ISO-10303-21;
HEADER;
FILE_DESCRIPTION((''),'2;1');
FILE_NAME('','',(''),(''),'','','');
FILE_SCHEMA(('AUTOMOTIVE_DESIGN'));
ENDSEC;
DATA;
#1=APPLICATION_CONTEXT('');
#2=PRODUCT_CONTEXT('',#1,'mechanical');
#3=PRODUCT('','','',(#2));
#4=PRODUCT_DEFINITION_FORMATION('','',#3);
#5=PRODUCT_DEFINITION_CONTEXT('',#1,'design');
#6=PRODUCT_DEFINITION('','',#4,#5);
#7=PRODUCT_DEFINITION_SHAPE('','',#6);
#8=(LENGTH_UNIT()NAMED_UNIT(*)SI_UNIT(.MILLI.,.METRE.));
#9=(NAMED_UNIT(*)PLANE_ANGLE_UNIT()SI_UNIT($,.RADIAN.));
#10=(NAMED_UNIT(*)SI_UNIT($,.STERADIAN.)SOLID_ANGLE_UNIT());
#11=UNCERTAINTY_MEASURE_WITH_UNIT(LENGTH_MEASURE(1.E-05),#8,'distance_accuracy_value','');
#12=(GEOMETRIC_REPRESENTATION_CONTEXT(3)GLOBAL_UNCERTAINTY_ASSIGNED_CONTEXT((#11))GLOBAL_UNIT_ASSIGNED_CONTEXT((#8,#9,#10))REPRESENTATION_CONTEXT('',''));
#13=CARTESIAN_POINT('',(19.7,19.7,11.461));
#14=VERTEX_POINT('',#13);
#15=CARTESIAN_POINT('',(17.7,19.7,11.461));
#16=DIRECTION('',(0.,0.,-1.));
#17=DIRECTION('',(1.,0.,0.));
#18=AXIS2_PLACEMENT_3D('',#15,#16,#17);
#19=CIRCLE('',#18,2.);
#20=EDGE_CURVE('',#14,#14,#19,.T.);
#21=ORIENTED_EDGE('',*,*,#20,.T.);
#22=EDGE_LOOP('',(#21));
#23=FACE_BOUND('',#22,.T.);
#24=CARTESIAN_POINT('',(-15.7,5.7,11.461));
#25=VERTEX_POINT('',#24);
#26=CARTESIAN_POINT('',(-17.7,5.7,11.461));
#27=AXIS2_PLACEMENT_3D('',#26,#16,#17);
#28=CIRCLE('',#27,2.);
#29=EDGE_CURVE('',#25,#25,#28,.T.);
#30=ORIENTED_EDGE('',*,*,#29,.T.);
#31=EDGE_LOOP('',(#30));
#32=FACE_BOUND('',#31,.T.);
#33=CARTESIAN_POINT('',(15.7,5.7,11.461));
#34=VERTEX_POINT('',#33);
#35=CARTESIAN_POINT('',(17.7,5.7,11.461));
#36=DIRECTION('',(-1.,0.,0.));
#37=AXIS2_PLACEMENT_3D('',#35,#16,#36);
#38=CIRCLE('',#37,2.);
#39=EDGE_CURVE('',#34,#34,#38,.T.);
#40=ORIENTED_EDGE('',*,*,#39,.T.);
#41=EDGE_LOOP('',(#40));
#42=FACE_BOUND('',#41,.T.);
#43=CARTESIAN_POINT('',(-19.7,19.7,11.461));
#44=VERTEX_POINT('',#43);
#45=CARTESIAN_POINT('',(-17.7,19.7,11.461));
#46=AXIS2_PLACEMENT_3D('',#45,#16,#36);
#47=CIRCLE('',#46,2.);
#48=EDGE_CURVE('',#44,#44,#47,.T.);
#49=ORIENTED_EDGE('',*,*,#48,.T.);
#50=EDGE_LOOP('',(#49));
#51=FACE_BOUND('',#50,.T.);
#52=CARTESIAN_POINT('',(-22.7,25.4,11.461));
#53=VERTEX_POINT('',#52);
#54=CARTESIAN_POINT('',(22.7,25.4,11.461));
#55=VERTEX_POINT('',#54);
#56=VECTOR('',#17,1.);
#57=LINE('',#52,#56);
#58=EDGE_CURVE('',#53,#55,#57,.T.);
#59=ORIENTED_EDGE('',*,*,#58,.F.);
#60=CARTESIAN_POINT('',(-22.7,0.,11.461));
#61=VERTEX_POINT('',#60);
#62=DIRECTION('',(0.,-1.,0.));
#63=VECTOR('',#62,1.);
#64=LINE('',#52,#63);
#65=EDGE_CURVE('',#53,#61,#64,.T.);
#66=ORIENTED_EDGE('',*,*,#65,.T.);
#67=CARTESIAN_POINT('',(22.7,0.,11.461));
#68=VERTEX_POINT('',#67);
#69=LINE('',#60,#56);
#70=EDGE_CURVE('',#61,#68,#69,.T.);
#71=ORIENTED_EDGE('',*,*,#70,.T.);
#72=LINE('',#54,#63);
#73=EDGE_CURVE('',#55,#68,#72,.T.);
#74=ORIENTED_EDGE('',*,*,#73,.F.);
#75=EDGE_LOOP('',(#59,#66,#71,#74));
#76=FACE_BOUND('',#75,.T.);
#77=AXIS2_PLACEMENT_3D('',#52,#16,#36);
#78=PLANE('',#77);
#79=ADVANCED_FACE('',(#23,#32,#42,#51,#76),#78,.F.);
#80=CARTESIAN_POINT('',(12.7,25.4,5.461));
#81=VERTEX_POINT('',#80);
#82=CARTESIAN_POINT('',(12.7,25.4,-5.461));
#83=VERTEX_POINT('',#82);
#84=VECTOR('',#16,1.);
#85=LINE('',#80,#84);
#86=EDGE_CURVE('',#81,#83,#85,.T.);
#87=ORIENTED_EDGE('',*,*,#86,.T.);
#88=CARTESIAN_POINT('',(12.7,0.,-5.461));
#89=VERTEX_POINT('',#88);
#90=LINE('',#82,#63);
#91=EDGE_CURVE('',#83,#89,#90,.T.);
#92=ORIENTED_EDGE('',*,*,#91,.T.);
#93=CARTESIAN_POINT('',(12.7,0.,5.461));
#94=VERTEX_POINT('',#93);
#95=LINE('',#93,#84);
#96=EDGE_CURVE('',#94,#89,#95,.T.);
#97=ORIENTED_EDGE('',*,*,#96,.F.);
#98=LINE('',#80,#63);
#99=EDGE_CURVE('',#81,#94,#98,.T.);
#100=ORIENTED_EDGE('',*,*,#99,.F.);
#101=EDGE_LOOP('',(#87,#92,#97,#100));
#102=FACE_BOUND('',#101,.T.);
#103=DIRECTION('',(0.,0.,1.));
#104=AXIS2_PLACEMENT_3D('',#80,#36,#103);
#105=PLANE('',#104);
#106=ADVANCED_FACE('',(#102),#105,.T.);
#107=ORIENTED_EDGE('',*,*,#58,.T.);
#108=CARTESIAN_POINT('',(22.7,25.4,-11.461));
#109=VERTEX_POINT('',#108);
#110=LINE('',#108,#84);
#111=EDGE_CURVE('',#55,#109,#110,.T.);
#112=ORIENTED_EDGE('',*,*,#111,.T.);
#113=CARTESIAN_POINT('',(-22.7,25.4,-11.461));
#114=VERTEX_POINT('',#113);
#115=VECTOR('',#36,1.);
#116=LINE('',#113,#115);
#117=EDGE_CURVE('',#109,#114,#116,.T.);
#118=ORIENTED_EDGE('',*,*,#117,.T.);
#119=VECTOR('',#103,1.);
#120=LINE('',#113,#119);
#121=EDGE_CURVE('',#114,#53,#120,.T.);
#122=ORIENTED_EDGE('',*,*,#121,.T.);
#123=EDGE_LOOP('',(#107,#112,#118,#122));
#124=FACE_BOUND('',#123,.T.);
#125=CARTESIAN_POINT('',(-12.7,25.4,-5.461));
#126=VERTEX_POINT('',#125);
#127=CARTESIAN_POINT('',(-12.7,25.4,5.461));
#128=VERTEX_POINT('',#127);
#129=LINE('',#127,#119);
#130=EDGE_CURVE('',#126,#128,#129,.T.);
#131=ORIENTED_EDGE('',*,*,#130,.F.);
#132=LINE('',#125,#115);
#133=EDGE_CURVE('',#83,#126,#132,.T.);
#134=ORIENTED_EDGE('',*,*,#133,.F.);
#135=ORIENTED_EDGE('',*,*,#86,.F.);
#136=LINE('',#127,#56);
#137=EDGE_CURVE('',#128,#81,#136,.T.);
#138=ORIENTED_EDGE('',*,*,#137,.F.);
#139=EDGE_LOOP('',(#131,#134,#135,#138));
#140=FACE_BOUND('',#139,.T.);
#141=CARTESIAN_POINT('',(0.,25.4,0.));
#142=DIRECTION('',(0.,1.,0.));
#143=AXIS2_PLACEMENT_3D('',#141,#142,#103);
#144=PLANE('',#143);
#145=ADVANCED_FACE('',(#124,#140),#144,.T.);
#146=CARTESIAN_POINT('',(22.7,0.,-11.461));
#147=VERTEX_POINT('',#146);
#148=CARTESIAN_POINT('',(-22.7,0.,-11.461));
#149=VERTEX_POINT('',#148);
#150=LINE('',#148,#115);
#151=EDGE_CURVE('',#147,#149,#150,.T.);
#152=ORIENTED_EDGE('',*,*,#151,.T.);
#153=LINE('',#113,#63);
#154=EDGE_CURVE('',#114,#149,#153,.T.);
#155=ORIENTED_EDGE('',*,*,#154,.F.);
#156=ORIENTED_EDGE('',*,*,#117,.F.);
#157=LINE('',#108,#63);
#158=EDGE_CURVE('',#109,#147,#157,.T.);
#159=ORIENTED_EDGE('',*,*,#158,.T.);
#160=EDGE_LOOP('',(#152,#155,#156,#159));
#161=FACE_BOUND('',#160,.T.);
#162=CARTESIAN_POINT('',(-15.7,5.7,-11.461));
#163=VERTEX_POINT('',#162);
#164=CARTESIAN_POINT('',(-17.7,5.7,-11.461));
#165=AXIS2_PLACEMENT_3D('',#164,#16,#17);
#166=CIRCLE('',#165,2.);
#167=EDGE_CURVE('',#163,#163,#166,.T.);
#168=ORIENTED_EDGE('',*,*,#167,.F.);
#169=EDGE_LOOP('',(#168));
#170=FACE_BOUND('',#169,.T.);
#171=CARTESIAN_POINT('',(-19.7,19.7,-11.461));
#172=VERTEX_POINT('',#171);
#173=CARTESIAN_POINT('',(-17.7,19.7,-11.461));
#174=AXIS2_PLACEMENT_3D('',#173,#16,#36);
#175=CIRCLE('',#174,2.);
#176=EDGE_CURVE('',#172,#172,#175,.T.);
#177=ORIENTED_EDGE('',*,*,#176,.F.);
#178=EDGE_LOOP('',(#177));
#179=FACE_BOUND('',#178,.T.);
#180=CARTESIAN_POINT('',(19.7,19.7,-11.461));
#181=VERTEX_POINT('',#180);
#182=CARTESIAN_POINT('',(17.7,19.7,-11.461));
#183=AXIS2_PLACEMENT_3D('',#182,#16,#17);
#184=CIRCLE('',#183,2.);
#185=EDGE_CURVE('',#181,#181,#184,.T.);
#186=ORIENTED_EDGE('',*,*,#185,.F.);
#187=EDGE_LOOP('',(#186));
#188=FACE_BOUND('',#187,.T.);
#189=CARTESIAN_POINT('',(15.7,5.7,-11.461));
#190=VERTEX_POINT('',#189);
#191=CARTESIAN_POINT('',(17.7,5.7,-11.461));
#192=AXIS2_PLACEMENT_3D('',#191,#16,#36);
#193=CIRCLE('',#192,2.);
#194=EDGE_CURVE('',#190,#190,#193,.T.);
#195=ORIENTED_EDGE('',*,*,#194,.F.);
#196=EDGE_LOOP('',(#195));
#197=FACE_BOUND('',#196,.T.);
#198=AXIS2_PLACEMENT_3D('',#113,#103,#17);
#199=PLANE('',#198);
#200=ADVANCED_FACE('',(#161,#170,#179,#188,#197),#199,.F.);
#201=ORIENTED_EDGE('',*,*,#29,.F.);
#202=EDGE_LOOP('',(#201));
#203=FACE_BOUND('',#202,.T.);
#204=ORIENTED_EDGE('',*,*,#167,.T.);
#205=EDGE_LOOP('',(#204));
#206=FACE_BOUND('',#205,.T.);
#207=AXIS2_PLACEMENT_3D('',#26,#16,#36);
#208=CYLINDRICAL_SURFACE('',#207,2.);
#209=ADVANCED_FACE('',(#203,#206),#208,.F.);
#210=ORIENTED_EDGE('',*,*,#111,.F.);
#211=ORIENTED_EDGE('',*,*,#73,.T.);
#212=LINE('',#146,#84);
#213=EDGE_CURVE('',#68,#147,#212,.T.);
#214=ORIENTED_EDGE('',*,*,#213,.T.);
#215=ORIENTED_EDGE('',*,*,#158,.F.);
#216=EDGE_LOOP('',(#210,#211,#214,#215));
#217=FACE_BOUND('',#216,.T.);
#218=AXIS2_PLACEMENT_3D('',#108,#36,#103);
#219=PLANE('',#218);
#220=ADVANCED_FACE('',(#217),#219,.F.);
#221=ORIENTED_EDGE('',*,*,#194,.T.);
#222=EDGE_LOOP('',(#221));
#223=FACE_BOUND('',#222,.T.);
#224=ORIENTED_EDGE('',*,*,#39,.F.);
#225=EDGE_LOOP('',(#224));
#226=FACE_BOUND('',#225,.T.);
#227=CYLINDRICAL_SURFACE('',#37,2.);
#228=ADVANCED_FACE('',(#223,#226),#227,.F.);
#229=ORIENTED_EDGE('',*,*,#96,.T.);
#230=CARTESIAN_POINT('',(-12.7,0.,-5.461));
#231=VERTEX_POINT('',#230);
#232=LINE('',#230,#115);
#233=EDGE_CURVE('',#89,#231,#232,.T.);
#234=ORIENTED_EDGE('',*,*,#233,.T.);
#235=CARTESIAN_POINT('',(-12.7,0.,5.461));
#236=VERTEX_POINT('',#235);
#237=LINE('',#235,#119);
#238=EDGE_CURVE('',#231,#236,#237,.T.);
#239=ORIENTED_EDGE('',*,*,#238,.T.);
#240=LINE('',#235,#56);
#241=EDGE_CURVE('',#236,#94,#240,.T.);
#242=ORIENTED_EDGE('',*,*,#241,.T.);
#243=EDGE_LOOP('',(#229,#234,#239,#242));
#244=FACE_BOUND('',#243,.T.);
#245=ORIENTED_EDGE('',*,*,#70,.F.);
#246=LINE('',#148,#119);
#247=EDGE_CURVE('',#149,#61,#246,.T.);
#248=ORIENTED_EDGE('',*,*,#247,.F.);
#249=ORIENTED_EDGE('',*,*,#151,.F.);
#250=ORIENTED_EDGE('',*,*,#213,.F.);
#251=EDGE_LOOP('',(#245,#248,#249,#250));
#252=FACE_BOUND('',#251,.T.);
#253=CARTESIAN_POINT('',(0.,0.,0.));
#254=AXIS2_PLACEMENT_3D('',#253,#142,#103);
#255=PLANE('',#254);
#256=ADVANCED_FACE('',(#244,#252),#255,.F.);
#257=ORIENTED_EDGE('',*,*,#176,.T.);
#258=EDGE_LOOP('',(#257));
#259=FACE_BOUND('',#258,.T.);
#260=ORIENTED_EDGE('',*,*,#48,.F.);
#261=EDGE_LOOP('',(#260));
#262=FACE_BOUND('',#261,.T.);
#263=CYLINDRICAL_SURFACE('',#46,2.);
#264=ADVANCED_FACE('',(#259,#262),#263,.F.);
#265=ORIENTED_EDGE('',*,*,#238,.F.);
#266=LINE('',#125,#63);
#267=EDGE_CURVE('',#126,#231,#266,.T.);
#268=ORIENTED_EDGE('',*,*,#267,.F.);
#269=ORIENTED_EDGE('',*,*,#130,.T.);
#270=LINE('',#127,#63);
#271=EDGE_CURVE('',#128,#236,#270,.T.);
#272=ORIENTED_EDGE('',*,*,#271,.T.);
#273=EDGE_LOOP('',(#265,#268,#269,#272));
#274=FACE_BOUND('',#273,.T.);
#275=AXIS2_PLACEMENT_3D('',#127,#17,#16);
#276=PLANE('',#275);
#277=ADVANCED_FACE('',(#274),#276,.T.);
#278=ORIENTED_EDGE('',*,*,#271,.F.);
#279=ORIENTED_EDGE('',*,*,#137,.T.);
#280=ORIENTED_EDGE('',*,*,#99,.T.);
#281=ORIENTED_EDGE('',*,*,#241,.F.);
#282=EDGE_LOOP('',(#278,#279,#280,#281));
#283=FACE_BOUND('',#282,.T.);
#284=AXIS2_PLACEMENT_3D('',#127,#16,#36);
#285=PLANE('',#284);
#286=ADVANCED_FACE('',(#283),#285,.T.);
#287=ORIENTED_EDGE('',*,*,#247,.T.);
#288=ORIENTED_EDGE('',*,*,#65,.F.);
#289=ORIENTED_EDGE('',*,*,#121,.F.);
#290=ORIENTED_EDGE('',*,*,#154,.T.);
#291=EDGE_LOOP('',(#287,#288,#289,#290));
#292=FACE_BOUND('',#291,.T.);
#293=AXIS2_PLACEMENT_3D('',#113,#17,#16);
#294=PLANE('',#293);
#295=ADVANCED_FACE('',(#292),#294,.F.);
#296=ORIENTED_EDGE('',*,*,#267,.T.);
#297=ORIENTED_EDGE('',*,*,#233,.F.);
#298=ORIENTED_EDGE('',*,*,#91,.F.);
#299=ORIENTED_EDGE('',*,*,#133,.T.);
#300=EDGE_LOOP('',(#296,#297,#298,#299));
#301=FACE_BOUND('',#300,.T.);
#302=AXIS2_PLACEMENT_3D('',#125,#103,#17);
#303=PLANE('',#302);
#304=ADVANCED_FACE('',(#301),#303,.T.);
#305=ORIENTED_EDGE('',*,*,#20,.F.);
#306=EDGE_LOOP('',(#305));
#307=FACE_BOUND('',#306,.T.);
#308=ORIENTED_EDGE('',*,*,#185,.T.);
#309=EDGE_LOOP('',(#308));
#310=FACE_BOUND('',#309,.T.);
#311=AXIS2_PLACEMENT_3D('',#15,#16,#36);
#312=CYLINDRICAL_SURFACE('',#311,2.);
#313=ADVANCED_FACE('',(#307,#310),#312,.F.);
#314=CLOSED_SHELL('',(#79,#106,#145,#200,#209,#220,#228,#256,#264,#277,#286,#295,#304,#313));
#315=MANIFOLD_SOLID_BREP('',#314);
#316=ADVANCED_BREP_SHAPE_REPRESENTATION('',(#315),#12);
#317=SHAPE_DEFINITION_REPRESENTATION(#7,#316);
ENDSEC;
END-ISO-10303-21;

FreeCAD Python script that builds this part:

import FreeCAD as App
import Part
import Sketcher

V = App.Vector

doc = App.newDocument("Part")
body = doc.addObject("PartDesign::Body", "Body")

# Sketch on XZ plane
sketch1 = body.newObject("Sketcher::SketchObject", "Sketch")
sketch1.AttachmentSupport = (doc.getObject("XZ_Plane"), [""])
sketch1.MapMode = "FlatFace"
sketch1.addGeometry([
    Part.LineSegment(V(-23, -11, 0), V(-23, 11, 0)),  # 0
    Part.LineSegment(V(-23, 11, 0), V(23, 11, 0)),  # 1
    Part.LineSegment(V(23, 11, 0), V(23, -11, 0)),  # 2
    Part.LineSegment(V(23, -11, 0), V(-23, -11, 0)),  # 3
    Part.LineSegment(V(13, 5, 0), V(-13, 5, 0)),  # 4
    Part.LineSegment(V(-13, 5, 0), V(-13, -5, 0)),  # 5
    Part.LineSegment(V(-13, -5, 0), V(13, -5, 0)),  # 6
    Part.LineSegment(V(13, -5, 0), V(13, 5, 0)),  # 7
], False)
sketch1.addConstraint([
    Sketcher.Constraint("Coincident", 0, 2, 1, 1),
    Sketcher.Constraint("Coincident", 1, 2, 2, 1),
    Sketcher.Constraint("Coincident", 2, 2, 3, 1),
    Sketcher.Constraint("Coincident", 3, 2, 0, 1),
    Sketcher.Constraint("Coincident", 4, 2, 5, 1),
    Sketcher.Constraint("Coincident", 5, 2, 6, 1),
    Sketcher.Constraint("Coincident", 6, 2, 7, 1),
    Sketcher.Constraint("Coincident", 7, 2, 4, 1),
    Sketcher.Constraint("Vertical", 0),
    Sketcher.Constraint("Horizontal", 1),
    Sketcher.Constraint("Vertical", 2),
    Sketcher.Constraint("Horizontal", 3),
    Sketcher.Constraint("Horizontal", 4),
    Sketcher.Constraint("Vertical", 5),
    Sketcher.Constraint("Horizontal", 6),
    Sketcher.Constraint("Vertical", 7),
    Sketcher.Constraint("Symmetric", 0, 2, 2, 2, -1, 1),
    Sketcher.Constraint("Symmetric", 4, 2, 6, 2, -1, 1),
    Sketcher.Constraint("DistanceX", 1, 1, 1, 2, 45.4),
    Sketcher.Constraint("DistanceX", 4, 2, 4, 1, 25.4),
    Sketcher.Constraint("DistanceY", 4, 2, 0, 2, 6.0),
    Sketcher.Constraint("DistanceY", 0, 1, 0, 2, 22.922),
])
pad1 = body.newObject("PartDesign::Pad", "Pad")
pad1.Profile = sketch1
pad1.Length = 25.4
pad1.Reversed = True

# Sketch on XY plane
sketch2 = body.newObject("Sketcher::SketchObject", "Sketch001")
sketch2.AttachmentSupport = (doc.getObject("XY_Plane"), [""])
sketch2.MapMode = "FlatFace"
sketch2.AttachmentOffset = App.Placement(V(0, 0, -11.461), App.Rotation())
sketch2.addGeometry([
    Part.Circle(V(17.7, 5.7, 0), V(0, 0, 1), 2),
    Part.Circle(V(17.7, 19.7, 0), V(0, 0, 1), 2),
    Part.Circle(V(-17.7, 19.7, 0), V(0, 0, 1), 2),
    Part.Circle(V(-17.7, 5.7, 0), V(0, 0, 1), 2),
], False)
sketch2.addConstraint([
    Sketcher.Constraint("Equal", 0, 1),
    Sketcher.Constraint("Equal", 1, 2),
    Sketcher.Constraint("Equal", 2, 3),
    Sketcher.Constraint("Symmetric", 1, 3, 2, 3, -2),
    Sketcher.Constraint("Symmetric", 0, 3, 3, 3, -2),
    Sketcher.Constraint("Vertical", 0, 3, 1, 3),
    Sketcher.Constraint("Diameter", 0, 4.0),
    Sketcher.Constraint("DistanceY", 0, 3, 1, 3, 14.0),
    Sketcher.Constraint("DistanceX", -1, 1, 0, 3, 17.7),
    Sketcher.Constraint("DistanceY", -1, 1, 0, 3, 5.7),
])
pocket1 = body.newObject("PartDesign::Pocket", "Pocket")
pocket1.Profile = sketch2
pocket1.Type = "ThroughAll"
pocket1.Reversed = True

doc.recompute()
